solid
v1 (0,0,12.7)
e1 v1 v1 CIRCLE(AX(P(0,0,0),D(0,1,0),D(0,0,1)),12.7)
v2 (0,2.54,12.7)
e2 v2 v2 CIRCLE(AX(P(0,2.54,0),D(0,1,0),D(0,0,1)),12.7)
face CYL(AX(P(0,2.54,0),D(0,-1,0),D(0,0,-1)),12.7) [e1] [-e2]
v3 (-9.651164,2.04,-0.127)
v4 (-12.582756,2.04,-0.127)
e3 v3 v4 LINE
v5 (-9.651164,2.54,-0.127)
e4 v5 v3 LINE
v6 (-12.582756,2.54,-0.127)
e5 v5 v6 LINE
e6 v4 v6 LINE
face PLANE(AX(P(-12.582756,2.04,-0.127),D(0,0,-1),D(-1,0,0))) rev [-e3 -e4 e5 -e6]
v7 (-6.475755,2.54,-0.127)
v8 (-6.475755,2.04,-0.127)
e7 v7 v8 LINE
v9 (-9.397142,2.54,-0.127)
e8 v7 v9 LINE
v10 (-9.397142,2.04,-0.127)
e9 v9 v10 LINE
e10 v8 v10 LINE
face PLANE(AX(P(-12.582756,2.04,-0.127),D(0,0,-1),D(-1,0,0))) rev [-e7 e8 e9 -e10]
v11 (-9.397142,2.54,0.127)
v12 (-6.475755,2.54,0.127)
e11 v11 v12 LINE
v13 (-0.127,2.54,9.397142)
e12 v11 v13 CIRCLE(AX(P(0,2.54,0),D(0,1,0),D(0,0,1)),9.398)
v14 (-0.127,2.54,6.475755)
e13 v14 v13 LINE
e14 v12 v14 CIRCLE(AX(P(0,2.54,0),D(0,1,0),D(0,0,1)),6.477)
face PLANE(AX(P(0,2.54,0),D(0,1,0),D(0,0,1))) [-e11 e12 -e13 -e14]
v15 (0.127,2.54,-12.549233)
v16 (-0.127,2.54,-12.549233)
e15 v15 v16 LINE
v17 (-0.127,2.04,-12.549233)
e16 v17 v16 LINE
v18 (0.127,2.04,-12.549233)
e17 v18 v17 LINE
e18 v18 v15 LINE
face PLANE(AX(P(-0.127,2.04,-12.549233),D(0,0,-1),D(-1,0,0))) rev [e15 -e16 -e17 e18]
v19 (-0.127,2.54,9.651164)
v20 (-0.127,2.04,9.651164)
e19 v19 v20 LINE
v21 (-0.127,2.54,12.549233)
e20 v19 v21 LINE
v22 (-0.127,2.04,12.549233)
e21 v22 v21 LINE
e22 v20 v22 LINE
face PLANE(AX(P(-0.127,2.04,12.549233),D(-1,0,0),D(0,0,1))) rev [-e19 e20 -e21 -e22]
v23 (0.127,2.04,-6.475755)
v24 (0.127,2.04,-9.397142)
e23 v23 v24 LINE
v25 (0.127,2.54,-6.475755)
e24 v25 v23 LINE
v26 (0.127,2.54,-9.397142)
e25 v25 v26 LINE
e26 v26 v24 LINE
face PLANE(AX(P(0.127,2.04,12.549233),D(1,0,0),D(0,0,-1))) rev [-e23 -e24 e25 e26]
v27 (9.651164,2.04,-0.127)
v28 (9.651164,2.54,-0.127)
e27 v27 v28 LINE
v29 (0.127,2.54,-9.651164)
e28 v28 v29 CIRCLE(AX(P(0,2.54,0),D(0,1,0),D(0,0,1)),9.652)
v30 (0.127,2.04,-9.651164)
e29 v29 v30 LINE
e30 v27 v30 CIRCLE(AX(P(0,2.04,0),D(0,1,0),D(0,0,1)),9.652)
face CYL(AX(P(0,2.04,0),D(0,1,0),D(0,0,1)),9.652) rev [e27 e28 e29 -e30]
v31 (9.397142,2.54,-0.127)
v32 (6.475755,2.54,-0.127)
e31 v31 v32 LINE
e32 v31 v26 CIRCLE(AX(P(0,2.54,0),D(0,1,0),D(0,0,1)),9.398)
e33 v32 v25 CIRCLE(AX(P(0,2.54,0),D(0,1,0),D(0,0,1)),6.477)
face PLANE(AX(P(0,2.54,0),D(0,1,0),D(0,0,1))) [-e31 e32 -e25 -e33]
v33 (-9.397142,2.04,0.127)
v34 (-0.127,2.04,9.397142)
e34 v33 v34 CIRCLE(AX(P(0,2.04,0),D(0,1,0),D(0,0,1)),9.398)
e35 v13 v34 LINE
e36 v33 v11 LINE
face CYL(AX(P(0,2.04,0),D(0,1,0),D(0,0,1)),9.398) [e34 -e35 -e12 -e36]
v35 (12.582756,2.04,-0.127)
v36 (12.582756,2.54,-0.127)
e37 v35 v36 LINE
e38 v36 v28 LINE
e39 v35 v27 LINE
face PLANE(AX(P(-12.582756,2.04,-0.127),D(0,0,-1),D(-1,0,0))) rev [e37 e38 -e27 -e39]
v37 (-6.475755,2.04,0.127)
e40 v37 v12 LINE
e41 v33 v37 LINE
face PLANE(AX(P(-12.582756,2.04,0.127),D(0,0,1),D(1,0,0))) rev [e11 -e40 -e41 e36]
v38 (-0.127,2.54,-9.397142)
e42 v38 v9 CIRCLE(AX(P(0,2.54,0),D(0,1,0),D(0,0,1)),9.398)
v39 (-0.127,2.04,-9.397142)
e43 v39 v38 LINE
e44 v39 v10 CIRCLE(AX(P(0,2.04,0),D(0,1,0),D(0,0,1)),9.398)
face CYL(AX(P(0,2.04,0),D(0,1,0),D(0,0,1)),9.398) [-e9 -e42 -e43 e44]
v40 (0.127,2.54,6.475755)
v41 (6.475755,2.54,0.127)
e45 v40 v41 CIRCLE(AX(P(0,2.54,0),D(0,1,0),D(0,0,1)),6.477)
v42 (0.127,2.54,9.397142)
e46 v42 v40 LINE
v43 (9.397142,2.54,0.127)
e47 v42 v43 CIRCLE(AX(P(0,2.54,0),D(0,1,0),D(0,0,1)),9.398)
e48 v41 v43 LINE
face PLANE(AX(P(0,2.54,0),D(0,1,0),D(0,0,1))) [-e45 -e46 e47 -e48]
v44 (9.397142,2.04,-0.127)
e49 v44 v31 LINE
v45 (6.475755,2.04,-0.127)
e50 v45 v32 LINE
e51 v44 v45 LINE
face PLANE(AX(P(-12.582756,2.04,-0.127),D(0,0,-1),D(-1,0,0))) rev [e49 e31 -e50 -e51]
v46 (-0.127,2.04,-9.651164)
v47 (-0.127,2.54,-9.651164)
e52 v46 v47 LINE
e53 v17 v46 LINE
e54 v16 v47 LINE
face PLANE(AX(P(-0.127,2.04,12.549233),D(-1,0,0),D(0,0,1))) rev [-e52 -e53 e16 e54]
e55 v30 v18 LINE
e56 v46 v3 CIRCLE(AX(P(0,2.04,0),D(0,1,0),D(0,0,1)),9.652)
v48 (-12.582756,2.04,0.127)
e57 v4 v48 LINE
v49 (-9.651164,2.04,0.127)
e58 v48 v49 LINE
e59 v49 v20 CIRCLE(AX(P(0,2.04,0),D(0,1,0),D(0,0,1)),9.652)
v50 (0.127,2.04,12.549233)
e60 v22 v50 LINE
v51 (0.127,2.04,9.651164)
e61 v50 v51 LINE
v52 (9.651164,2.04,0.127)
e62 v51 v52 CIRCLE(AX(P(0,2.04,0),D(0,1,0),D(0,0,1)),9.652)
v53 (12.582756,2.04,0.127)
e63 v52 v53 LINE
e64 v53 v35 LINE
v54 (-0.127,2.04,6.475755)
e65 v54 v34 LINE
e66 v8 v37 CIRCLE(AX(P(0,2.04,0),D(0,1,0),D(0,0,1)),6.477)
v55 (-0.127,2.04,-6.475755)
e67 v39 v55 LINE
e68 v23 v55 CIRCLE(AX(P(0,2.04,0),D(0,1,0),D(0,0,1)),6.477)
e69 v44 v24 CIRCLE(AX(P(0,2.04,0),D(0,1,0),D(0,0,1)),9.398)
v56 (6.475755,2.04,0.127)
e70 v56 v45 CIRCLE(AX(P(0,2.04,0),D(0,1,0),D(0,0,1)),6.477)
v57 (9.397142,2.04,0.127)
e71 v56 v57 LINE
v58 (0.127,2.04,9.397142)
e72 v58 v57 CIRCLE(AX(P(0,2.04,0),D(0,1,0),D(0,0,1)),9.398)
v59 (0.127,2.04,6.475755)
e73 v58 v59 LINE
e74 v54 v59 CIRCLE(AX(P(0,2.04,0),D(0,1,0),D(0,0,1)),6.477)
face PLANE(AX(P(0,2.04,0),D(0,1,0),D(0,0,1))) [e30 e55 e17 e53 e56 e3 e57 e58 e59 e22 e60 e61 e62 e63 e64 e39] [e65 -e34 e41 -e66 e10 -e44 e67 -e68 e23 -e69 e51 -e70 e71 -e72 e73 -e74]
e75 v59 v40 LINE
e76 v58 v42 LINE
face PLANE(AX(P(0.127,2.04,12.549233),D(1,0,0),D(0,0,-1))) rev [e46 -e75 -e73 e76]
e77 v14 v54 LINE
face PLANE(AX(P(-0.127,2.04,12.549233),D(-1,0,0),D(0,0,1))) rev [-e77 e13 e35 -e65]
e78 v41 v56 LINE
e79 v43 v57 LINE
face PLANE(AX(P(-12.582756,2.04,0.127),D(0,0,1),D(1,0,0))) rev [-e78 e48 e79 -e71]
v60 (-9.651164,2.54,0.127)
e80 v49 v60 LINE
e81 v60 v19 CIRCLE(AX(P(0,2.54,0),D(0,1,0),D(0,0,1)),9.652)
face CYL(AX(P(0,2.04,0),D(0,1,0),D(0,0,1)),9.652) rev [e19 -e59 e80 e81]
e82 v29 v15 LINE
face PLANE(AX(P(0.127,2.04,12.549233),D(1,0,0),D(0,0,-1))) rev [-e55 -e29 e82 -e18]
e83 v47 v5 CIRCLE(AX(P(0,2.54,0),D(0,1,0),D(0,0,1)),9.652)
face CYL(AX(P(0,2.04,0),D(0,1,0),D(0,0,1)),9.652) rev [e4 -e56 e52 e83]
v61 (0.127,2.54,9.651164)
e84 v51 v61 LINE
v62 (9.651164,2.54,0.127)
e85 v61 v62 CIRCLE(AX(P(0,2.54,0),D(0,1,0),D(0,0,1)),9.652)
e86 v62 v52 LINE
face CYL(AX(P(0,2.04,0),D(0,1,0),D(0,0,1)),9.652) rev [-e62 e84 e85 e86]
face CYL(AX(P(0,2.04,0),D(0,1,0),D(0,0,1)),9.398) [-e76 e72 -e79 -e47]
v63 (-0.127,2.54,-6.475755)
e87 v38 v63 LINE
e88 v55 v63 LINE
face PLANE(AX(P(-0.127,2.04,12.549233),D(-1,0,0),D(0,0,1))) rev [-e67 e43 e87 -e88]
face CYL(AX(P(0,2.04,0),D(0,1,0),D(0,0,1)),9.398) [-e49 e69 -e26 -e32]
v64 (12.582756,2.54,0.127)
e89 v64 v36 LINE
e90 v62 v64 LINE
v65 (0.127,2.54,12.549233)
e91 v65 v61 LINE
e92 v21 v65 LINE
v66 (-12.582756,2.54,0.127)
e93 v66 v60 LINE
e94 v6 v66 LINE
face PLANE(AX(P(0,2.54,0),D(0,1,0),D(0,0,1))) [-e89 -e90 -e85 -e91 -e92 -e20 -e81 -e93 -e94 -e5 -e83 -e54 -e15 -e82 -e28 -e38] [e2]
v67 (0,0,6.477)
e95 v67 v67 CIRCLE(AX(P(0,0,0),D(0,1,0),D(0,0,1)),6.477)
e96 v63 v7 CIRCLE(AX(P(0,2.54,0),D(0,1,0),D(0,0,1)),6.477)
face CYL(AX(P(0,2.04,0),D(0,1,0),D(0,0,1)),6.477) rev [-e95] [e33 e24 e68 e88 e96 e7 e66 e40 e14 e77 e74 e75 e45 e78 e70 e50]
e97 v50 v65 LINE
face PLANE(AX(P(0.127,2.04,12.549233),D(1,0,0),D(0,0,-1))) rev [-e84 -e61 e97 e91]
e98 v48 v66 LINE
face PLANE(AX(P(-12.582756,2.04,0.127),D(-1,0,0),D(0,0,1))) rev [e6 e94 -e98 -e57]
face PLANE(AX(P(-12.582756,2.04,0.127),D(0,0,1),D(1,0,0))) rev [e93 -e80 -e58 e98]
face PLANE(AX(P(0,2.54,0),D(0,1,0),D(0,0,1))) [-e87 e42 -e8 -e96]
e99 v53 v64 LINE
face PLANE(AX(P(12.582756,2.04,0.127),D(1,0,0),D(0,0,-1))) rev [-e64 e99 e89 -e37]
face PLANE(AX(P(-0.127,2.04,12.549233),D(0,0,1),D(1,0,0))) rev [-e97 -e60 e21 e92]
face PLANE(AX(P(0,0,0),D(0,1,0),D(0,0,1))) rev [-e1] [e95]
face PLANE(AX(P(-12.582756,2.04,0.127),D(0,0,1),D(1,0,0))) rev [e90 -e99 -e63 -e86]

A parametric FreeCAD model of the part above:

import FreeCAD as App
import Part
import Sketcher
from FreeCAD import Vector
Q = App.Units.Quantity

doc = App.newDocument("Part")
body = doc.addObject("PartDesign::Body", "Body")

# Sketch on XZ plane
sketch1 = doc.addObject("Sketcher::SketchObject", "Sketch")
body.addObject(sketch1)
sketch1.AttachmentSupport = (doc.XZ_Plane, [""])
sketch1.MapMode = "FlatFace"
sketch1.addGeometry(Part.Circle(Vector(0, 0, 0), Vector(0, 0, 1), 13), False)
sketch1.addConstraint([
    Sketcher.Constraint("Coincident", 0, 3, -1, 1),
    Sketcher.Constraint("Diameter", 0, Q("1 in")),
])
pad1 = doc.addObject("PartDesign::Pad", "Pad")
body.addObject(pad1)
pad1.Profile = sketch1
pad1.Length = Q("0.1 in")
pad1.Reversed = True

# Sketch on XZ plane
sketch2 = doc.addObject("Sketcher::SketchObject", "Sketch001")
body.addObject(sketch2)
sketch2.AttachmentSupport = (doc.XZ_Plane, [""])
sketch2.MapMode = "FlatFace"
sketch2.AttachmentOffset = App.Placement(Vector(0, 0, -0.1 * 25.4), App.Rotation())
sketch2.addGeometry([
    Part.Circle(Vector(0, 0, 0), Vector(0, 0, 1), 6),
    Part.Circle(Vector(0, 0, 0), Vector(0, 0, 1), 6),
], False)
sketch2.addConstraint([
    Sketcher.Constraint("Coincident", 0, 3, -1, 1),
    Sketcher.Constraint("Coincident", 1, 3, -1, 1),
    Sketcher.Constraint("Diameter", 0, Q("0.51 in")),
    Sketcher.Constraint("Diameter", 1, Q("0.49 in")),
])
pocket1 = doc.addObject("PartDesign::Pocket", "Pocket")
body.addObject(pocket1)
pocket1.Profile = sketch2
pocket1.Length = 0.5
pocket1.Reversed = True

# Sketch on XZ plane
sketch3 = doc.addObject("Sketcher::SketchObject", "Sketch002")
body.addObject(sketch3)
sketch3.AttachmentSupport = (doc.XZ_Plane, [""])
sketch3.MapMode = "FlatFace"
sketch3.AttachmentOffset = App.Placement(Vector(0, 0, -0.1 * 25.4), App.Rotation())
sketch3.addGeometry([
    Part.Circle(Vector(0, 0, 0), Vector(0, 0, 1), 3.3),
    Part.Circle(Vector(0, 0, 0), Vector(0, 0, 1), 3),
], False)
sketch3.addConstraint([
    Sketcher.Constraint("Coincident", 0, 3, -1, 1),
    Sketcher.Constraint("Coincident", 1, 3, -1, 1),
    Sketcher.Constraint("Diameter", 0, Q("0.26 in")),
    Sketcher.Constraint("Diameter", 1, Q("0.24 in")),
])
pocket2 = doc.addObject("PartDesign::Pocket", "Pocket001")
body.addObject(pocket2)
pocket2.Profile = sketch3
pocket2.Length = 0.5
pocket2.Reversed = True

# Sketch on XZ plane
sketch4 = doc.addObject("Sketcher::SketchObject", "Sketch003")
body.addObject(sketch4)
sketch4.AttachmentSupport = (doc.XZ_Plane, [""])
sketch4.MapMode = "FlatFace"
sketch4.AttachmentOffset = App.Placement(Vector(0, 0, -0.1 * 25.4), App.Rotation())
sketch4.addGeometry(Part.Circle(Vector(0, 0, 0), Vector(0, 0, 1), 0.25), False)
sketch4.addConstraint([
    Sketcher.Constraint("Coincident", 0, 3, -1, 1),
    Sketcher.Constraint("Diameter", 0, Q("0.5 mm")),
])
pocket3 = doc.addObject("PartDesign::Pocket", "Pocket002")
body.addObject(pocket3)
pocket3.Profile = sketch4
pocket3.Length = 0.5
pocket3.Reversed = True

# Sketch on XZ plane
sketch5 = doc.addObject("Sketcher::SketchObject", "Sketch004")
body.addObject(sketch5)
sketch5.AttachmentSupport = (doc.XZ_Plane, [""])
sketch5.MapMode = "FlatFace"
sketch5.AttachmentOffset = App.Placement(Vector(0, 0, -0.1 * 25.4), App.Rotation())
sketch5.addGeometry([
    Part.Circle(Vector(0, 0, 0), Vector(0, 0, 1), 10),
    Part.Circle(Vector(0, 0, 0), Vector(0, 0, 1), 9),
], False)
sketch5.addConstraint([
    Sketcher.Constraint("Coincident", 0, 3, -1, 1),
    Sketcher.Constraint("Coincident", 1, 3, -1, 1),
    Sketcher.Constraint("Diameter", 0, Q("0.76 in")),
    Sketcher.Constraint("Diameter", 1, Q("0.74 in")),
])
pocket4 = doc.addObject("PartDesign::Pocket", "Pocket003")
body.addObject(pocket4)
pocket4.Profile = sketch5
pocket4.Length = 0.5
pocket4.Reversed = True

# Sketch on XZ plane
sketch6 = doc.addObject("Sketcher::SketchObject", "Sketch005")
body.addObject(sketch6)
sketch6.AttachmentSupport = (doc.XZ_Plane, [""])
sketch6.MapMode = "FlatFace"
sketch6.AttachmentOffset = App.Placement(Vector(0, 0, -0.1 * 25.4), App.Rotation())
sketch6.addGeometry([
    Part.LineSegment(Vector(-12.58, -0.13, 0), Vector(-12.58, 0.13, 0)),
    Part.LineSegment(Vector(-12.58, 0.13, 0), Vector(12.58, 0.13, 0)),
    Part.LineSegment(Vector(12.58, 0.13, 0), Vector(12.58, -0.13, 0)),
    Part.LineSegment(Vector(12.58, -0.13, 0), Vector(-12.58, -0.13, 0)),
], False)
sketch6.addConstraint([
    Sketcher.Constraint("Coincident", 0, 2, 1, 1),
    Sketcher.Constraint("Coincident", 1, 2, 2, 1),
    Sketcher.Constraint("Coincident", 2, 2, 3, 1),
    Sketcher.Constraint("Coincident", 3, 2, 0, 1),
    Sketcher.Constraint("Vertical", 0),
    Sketcher.Constraint("Horizontal", 1),
    Sketcher.Constraint("Vertical", 2),
    Sketcher.Constraint("Horizontal", 3),
    Sketcher.Constraint("Symmetric", 0, 2, 2, 2, -1, 1),
    Sketcher.Constraint("DistanceY", 0, 1, 0, 2, Q("0.01 in")),
    Sketcher.Constraint("DistanceX", 1, 1, 1, 2, Q("25.165513 mm")),
])
pocket5 = doc.addObject("PartDesign::Pocket", "Pocket004")
body.addObject(pocket5)
pocket5.Profile = sketch6
pocket5.Length = 0.5
pocket5.Reversed = True

# Sketch on XZ plane
sketch7 = doc.addObject("Sketcher::SketchObject", "Sketch006")
body.addObject(sketch7)
sketch7.AttachmentSupport = (doc.XZ_Plane, [""])
sketch7.MapMode = "FlatFace"
sketch7.AttachmentOffset = App.Placement(Vector(0, 0, -0.1 * 25.4), App.Rotation())
sketch7.addGeometry([
    Part.LineSegment(Vector(-0.13, -12.55, 0), Vector(-0.13, 12.55, 0)),
    Part.LineSegment(Vector(-0.13, 12.55, 0), Vector(0.13, 12.55, 0)),
    Part.LineSegment(Vector(0.13, 12.55, 0), Vector(0.13, -12.55, 0)),
    Part.LineSegment(Vector(0.13, -12.55, 0), Vector(-0.13, -12.55, 0)),
], False)
sketch7.addConstraint([
    Sketcher.Constraint("Coincident", 0, 2, 1, 1),
    Sketcher.Constraint("Coincident", 1, 2, 2, 1),
    Sketcher.Constraint("Coincident", 2, 2, 3, 1),
    Sketcher.Constraint("Coincident", 3, 2, 0, 1),
    Sketcher.Constraint("Vertical", 0),
    Sketcher.Constraint("Horizontal", 1),
    Sketcher.Constraint("Vertical", 2),
    Sketcher.Constraint("Horizontal", 3),
    Sketcher.Constraint("Symmetric", 0, 2, 2, 2, -1, 1),
    Sketcher.Constraint("DistanceX", 1, 1, 1, 2, Q("0.01 in")),
    Sketcher.Constraint("DistanceY", 0, 1, 0, 2, Q("25.098466 mm")),
])
pocket6 = doc.addObject("PartDesign::Pocket", "Pocket005")
body.addObject(pocket6)
pocket6.Profile = sketch7
pocket6.Length = 0.5
pocket6.Reversed = True

# Sketch on XZ plane
sketch8 = doc.addObject("Sketcher::SketchObject", "Sketch007")
body.addObject(sketch8)
sketch8.AttachmentSupport = (doc.XZ_Plane, [""])
sketch8.MapMode = "FlatFace"
sketch8.AttachmentOffset = App.Placement(Vector(0, 0, -0.1 * 25.4), App.Rotation())
sketch8.addGeometry(Part.Circle(Vector(0, 0, 0), Vector(0, 0, 1), 6), False)
sketch8.addConstraint([
    Sketcher.Constraint("Coincident", 0, 3, -1, 1),
    Sketcher.Constraint("Diameter", 0, Q("0.51 in")),
])
pocket7 = doc.addObject("PartDesign::Pocket", "Pocket006")
body.addObject(pocket7)
pocket7.Profile = sketch8
pocket7.Length = 10
pocket7.Reversed = True

doc.recompute()
